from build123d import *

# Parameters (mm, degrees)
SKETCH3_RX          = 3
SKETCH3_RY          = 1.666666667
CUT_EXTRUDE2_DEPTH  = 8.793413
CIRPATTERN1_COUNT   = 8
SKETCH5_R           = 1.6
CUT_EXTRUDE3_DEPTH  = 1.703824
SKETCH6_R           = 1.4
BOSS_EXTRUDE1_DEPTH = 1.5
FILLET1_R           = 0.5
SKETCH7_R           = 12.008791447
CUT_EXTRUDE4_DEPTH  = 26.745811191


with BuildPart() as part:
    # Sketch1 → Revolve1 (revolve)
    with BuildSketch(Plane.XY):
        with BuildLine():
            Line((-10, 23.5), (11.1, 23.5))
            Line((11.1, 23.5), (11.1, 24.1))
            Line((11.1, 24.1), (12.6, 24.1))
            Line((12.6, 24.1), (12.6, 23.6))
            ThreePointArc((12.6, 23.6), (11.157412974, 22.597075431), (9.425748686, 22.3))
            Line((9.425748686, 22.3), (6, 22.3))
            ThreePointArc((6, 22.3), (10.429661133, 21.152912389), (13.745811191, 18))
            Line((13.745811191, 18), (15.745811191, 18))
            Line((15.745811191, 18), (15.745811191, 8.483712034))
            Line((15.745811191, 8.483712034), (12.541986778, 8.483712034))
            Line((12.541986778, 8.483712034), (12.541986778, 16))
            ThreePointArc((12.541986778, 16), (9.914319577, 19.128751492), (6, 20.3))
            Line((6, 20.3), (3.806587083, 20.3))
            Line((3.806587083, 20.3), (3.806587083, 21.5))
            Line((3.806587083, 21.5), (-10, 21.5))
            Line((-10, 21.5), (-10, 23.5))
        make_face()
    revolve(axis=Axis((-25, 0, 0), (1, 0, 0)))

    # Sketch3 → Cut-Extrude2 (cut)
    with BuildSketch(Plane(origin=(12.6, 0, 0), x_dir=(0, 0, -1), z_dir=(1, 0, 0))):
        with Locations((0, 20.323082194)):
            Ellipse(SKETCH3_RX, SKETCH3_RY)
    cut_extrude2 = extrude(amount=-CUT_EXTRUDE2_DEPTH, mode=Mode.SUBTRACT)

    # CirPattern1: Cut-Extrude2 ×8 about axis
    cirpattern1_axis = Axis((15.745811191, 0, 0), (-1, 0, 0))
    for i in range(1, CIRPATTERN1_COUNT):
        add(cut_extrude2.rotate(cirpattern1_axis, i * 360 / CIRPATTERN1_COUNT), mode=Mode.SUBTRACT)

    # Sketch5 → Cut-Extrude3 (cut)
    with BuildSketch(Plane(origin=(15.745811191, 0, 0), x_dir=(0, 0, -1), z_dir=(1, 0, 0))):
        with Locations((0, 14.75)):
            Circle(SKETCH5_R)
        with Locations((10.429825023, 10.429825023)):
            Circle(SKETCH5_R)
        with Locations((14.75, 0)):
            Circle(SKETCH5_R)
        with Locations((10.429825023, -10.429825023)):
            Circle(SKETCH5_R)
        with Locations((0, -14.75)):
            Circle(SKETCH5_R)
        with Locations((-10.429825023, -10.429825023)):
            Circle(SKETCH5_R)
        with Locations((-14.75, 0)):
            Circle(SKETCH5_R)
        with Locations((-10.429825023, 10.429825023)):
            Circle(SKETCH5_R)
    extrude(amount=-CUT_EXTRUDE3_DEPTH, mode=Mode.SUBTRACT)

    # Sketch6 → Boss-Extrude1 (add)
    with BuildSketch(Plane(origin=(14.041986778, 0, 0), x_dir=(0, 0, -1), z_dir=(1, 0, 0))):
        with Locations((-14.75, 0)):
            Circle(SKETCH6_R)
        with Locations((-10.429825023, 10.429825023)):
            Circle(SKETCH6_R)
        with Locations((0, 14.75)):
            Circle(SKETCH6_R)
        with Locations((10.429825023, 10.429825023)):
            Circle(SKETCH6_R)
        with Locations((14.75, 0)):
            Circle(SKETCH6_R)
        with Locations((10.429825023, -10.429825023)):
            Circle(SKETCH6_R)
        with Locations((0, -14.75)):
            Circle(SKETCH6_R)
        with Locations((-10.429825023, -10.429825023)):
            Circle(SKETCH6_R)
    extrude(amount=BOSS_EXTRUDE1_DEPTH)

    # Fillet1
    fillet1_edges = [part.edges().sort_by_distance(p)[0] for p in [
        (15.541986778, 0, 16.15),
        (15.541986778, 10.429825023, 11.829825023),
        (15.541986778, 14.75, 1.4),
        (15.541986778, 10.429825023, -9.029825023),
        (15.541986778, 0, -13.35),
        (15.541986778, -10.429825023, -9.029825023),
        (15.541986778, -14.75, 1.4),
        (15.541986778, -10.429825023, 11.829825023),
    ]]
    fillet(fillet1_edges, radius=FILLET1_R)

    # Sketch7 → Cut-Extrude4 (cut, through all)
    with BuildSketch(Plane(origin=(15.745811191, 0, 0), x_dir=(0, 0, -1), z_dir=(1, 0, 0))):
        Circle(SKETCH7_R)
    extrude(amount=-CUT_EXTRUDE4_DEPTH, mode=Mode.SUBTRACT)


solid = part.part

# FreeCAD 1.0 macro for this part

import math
import FreeCAD as App
import Part
import Sketcher

V = App.Vector


def edges_at(feature, points):
    """Names of the edges that pass closest to the given points."""
    edges = feature.Shape.Edges
    near = lambda p: min(range(len(edges)), key=lambda i: edges[i].distToShape(Part.Vertex(*p))[0])
    return sorted({f"Edge{near(p) + 1}" for p in points})

doc = App.newDocument("Part")
body = doc.addObject("PartDesign::Body", "Body")

# Sketch on XY plane
sketch1 = doc.addObject("Sketcher::SketchObject", "Sketch")
body.addObject(sketch1)
sketch1.AttachmentSupport = (doc.XY_Plane, [""])
sketch1.MapMode = "FlatFace"
sketch1.addGeometry(Part.LineSegment(V(11.1, 23.5, 0), V(-10, 23.5, 0)), False)
sketch1.addGeometry(Part.LineSegment(V(-10, 23.5, 0), V(-10, 21.5, 0)), False)
sketch1.addGeometry(Part.LineSegment(V(-10, 21.5, 0), V(3.8, 21.5, 0)), False)
sketch1.addGeometry(Part.LineSegment(V(3.8, 21.5, 0), V(3.8, 20.3, 0)), False)
sketch1.addGeometry(Part.LineSegment(V(3.8, 20.3, 0), V(6, 20.3, 0)), False)
sketch1.addGeometry(Part.ArcOfCircle(Part.Circle(V(6, 13.2, 0), V(0, 0, 1), 7.1), math.radians(23), math.radians(90)), False)
sketch1.addGeometry(Part.LineSegment(V(12.5, 16, 0), V(12.5, 8.5, 0)), False)
sketch1.addGeometry(Part.LineSegment(V(12.5, 8.5, 0), V(15.7, 8.5, 0)), False)
sketch1.addGeometry(Part.LineSegment(V(15.7, 8.5, 0), V(15.7, 18, 0)), False)
sketch1.addGeometry(Part.LineSegment(V(15.7, 18, 0), V(13.7, 18, 0)), False)
sketch1.addGeometry(Part.ArcOfCircle(Part.Circle(V(6, 13.2, 0), V(0, 0, 1), 9.1), math.radians(32), math.radians(90)), False)
sketch1.addGeometry(Part.LineSegment(V(6, 22.3, 0), V(9.4, 22.3, 0)), False)
sketch1.addGeometry(Part.ArcOfCircle(Part.Circle(V(9.6, 26.3, 0), V(0, 0, 1), 4), math.radians(-93), math.radians(-43)), False)
sketch1.addGeometry(Part.LineSegment(V(12.6, 23.6, 0), V(12.6, 24.1, 0)), False)
sketch1.addGeometry(Part.LineSegment(V(12.6, 24.1, 0), V(11.1, 24.1, 0)), False)
sketch1.addGeometry(Part.LineSegment(V(11.1, 24.1, 0), V(11.1, 23.5, 0)), False)
sketch1.addConstraint(Sketcher.Constraint("Coincident", 0, 2, 1, 1))
sketch1.addConstraint(Sketcher.Constraint("Coincident", 1, 2, 2, 1))
sketch1.addConstraint(Sketcher.Constraint("Coincident", 2, 2, 3, 1))
sketch1.addConstraint(Sketcher.Constraint("Coincident", 3, 2, 4, 1))
sketch1.addConstraint(Sketcher.Constraint("Tangent", 4, 2, 5, 2))
sketch1.addConstraint(Sketcher.Constraint("Coincident", 5, 1, 6, 1))
sketch1.addConstraint(Sketcher.Constraint("Coincident", 6, 2, 7, 1))
sketch1.addConstraint(Sketcher.Constraint("Coincident", 7, 2, 8, 1))
sketch1.addConstraint(Sketcher.Constraint("Coincident", 8, 2, 9, 1))
sketch1.addConstraint(Sketcher.Constraint("Coincident", 9, 2, 10, 1))
sketch1.addConstraint(Sketcher.Constraint("Tangent", 10, 2, 11, 1))
sketch1.addConstraint(Sketcher.Constraint("Coincident", 11, 2, 12, 1))
sketch1.addConstraint(Sketcher.Constraint("Coincident", 12, 2, 13, 1))
sketch1.addConstraint(Sketcher.Constraint("Coincident", 13, 2, 14, 1))
sketch1.addConstraint(Sketcher.Constraint("Coincident", 14, 2, 15, 1))
sketch1.addConstraint(Sketcher.Constraint("Coincident", 15, 2, 0, 1))
sketch1.addConstraint(Sketcher.Constraint("Horizontal", 0))
sketch1.addConstraint(Sketcher.Constraint("Vertical", 1))
sketch1.addConstraint(Sketcher.Constraint("Horizontal", 2))
sketch1.addConstraint(Sketcher.Constraint("Vertical", 3))
sketch1.addConstraint(Sketcher.Constraint("Horizontal", 4))
sketch1.addConstraint(Sketcher.Constraint("Vertical", 6))
sketch1.addConstraint(Sketcher.Constraint("Horizontal", 7))
sketch1.addConstraint(Sketcher.Constraint("Vertical", 8))
sketch1.addConstraint(Sketcher.Constraint("Horizontal", 9))
sketch1.addConstraint(Sketcher.Constraint("Horizontal", 11))
sketch1.addConstraint(Sketcher.Constraint("Vertical", 13))
sketch1.addConstraint(Sketcher.Constraint("Horizontal", 14))
sketch1.addConstraint(Sketcher.Constraint("Vertical", 15))
sketch1.addConstraint(Sketcher.Constraint("Coincident", 10, 3, 5, 3))
sketch1.addConstraint(Sketcher.Constraint("Equal", 9, 1))
sketch1.addConstraint(Sketcher.Constraint("DistanceX", 9, 2, 9, 1, 2.0))
sketch1.addConstraint(Sketcher.Constraint("DistanceX", 0, 2, 0, 1, 21.1))
sketch1.addConstraint(Sketcher.Constraint("DistanceX", 14, 2, 14, 1, 1.5))
sketch1.addConstraint(Sketcher.Constraint("DistanceY", 3, 2, 3, 1, 1.2))
sketch1.addConstraint(Sketcher.Constraint("DistanceY", 13, 1, 13, 2, 0.5))
sketch1.addConstraint(Sketcher.Constraint("DistanceY", 15, 2, 15, 1, 0.6))
sketch1.addConstraint(Sketcher.Constraint("DistanceX", -1, 1, 5, 3, 6.0))
sketch1.addConstraint(Sketcher.Constraint("DistanceX", 0, 2, -1, 1, 10.0))
sketch1.addConstraint(Sketcher.Constraint("DistanceY", -1, 1, 5, 1, 16.0))
sketch1.addConstraint(Sketcher.Constraint("DistanceY", -1, 1, 8, 2, 18.0))
sketch1.addConstraint(Sketcher.Constraint("DistanceY", 4, 2, 10, 2, 2.0))
sketch1.addConstraint(Sketcher.Constraint("DistanceY", -1, 1, 0, 2, 23.5))
sketch1.addConstraint(Sketcher.Constraint("Radius", 5, 7.126464))
sketch1.addConstraint(Sketcher.Constraint("Radius", 12, 4.047082))
sketch1.addConstraint(Sketcher.Constraint("DistanceX", 11, 1, 11, 2, 3.425749))
sketch1.addConstraint(Sketcher.Constraint("DistanceX", 3, 2, 5, 1, 8.7354))
sketch1.addConstraint(Sketcher.Constraint("DistanceY", 6, 2, 6, 1, 7.516288))
revolution = doc.addObject("PartDesign::Revolution", "Revolution")
body.addObject(revolution)
revolution.Profile = sketch1
revolution.ReferenceAxis = (sketch1, ["H_Axis"])
revolution.Angle = 360

# Sketch on YZ plane
sketch2 = doc.addObject("Sketcher::SketchObject", "Sketch001")
body.addObject(sketch2)
sketch2.AttachmentSupport = (doc.YZ_Plane, [""])
sketch2.MapMode = "FlatFace"
sketch2.AttachmentOffset = App.Placement(V(0, 0, 12.6), App.Rotation())
sketch2.addGeometry(Part.Ellipse(V(20.323082, -3, 0), V(21.989749, 0, 0), V(20.323082, 0, 0)), False)
sketch2.addConstraint(Sketcher.Constraint("Block", 0))
pocket1 = doc.addObject("PartDesign::Pocket", "Pocket")
body.addObject(pocket1)
pocket1.Profile = sketch2
pocket1.Length = 8.793413
doc.recompute()

polarpattern = doc.addObject("PartDesign::PolarPattern", "PolarPattern")
body.addObject(polarpattern)
polarpattern.Originals = [pocket1]
polarpattern.Axis = (doc.X_Axis, [""])
polarpattern.Angle = 360
polarpattern.Occurrences = 8
body.Tip = polarpattern

# Sketch on YZ plane
sketch3 = doc.addObject("Sketcher::SketchObject", "Sketch002")
body.addObject(sketch3)
sketch3.AttachmentSupport = (doc.YZ_Plane, [""])
sketch3.MapMode = "FlatFace"
sketch3.AttachmentOffset = App.Placement(V(0, 0, 15.745811), App.Rotation())
sketch3.addGeometry(Part.Circle(V(14.8, 0, 0), V(0, 0, 1), 1.6), False)
sketch3.addGeometry(Part.Circle(V(10.4, -10.4, 0), V(0, 0, 1), 1.6), False)
sketch3.addGeometry(Part.Circle(V(0, -14.8, 0), V(0, 0, 1), 1.6), False)
sketch3.addGeometry(Part.Circle(V(-10.4, -10.4, 0), V(0, 0, 1), 1.6), False)
sketch3.addGeometry(Part.Circle(V(-14.8, 0, 0), V(0, 0, 1), 1.6), False)
sketch3.addGeometry(Part.Circle(V(-10.4, 10.4, 0), V(0, 0, 1), 1.6), False)
sketch3.addGeometry(Part.Circle(V(0, 14.8, 0), V(0, 0, 1), 1.6), False)
sketch3.addGeometry(Part.Circle(V(10.4, 10.4, 0), V(0, 0, 1), 1.6), False)
sketch3.addConstraint(Sketcher.Constraint("Equal", 0, 1))
sketch3.addConstraint(Sketcher.Constraint("Equal", 1, 2))
sketch3.addConstraint(Sketcher.Constraint("Equal", 2, 3))
sketch3.addConstraint(Sketcher.Constraint("Equal", 3, 4))
sketch3.addConstraint(Sketcher.Constraint("Equal", 4, 5))
sketch3.addConstraint(Sketcher.Constraint("Equal", 5, 6))
sketch3.addConstraint(Sketcher.Constraint("Equal", 6, 7))
sketch3.addConstraint(Sketcher.Constraint("Symmetric", 0, 3, 4, 3, -1, 1))
sketch3.addConstraint(Sketcher.Constraint("Symmetric", 1, 3, 5, 3, -1, 1))
sketch3.addConstraint(Sketcher.Constraint("Symmetric", 2, 3, 6, 3, -1, 1))
sketch3.addConstraint(Sketcher.Constraint("Symmetric", 3, 3, 7, 3, -1, 1))
sketch3.addConstraint(Sketcher.Constraint("Symmetric", 1, 3, 3, 3, -2))
sketch3.addConstraint(Sketcher.Constraint("PointOnObject", 0, 3, -1))
sketch3.addConstraint(Sketcher.Constraint("PointOnObject", 2, 3, -2))
sketch3.addConstraint(Sketcher.Constraint("Diameter", 0, 3.2))
sketch3.addConstraint(Sketcher.Constraint("DistanceX", 4, 3, 0, 3, 29.5))
sketch3.addConstraint(Sketcher.Constraint("DistanceY", 2, 3, -1, 1, 14.75))
sketch3.addConstraint(Sketcher.Constraint("DistanceX", 3, 3, 1, 3, 20.85965))
sketch3.addConstraint(Sketcher.Constraint("DistanceY", 3, 3, 5, 3, 20.85965))
pocket2 = doc.addObject("PartDesign::Pocket", "Pocket001")
body.addObject(pocket2)
pocket2.Profile = sketch3
pocket2.Length = 1.703824

# Sketch on YZ plane
sketch4 = doc.addObject("Sketcher::SketchObject", "Sketch003")
body.addObject(sketch4)
sketch4.AttachmentSupport = (doc.YZ_Plane, [""])
sketch4.MapMode = "FlatFace"
sketch4.AttachmentOffset = App.Placement(V(0, 0, 14.041987), App.Rotation())
sketch4.addGeometry(Part.Circle(V(0, 14.8, 0), V(0, 0, 1), 1.4), False)
sketch4.addGeometry(Part.Circle(V(10.4, 10.4, 0), V(0, 0, 1), 1.4), False)
sketch4.addGeometry(Part.Circle(V(14.8, 0, 0), V(0, 0, 1), 1.4), False)
sketch4.addGeometry(Part.Circle(V(10.4, -10.4, 0), V(0, 0, 1), 1.4), False)
sketch4.addGeometry(Part.Circle(V(0, -14.8, 0), V(0, 0, 1), 1.4), False)
sketch4.addGeometry(Part.Circle(V(-10.4, -10.4, 0), V(0, 0, 1), 1.4), False)
sketch4.addGeometry(Part.Circle(V(-14.8, 0, 0), V(0, 0, 1), 1.4), False)
sketch4.addGeometry(Part.Circle(V(-10.4, 10.4, 0), V(0, 0, 1), 1.4), False)
sketch4.addConstraint(Sketcher.Constraint("Equal", 0, 1))
sketch4.addConstraint(Sketcher.Constraint("Equal", 1, 2))
sketch4.addConstraint(Sketcher.Constraint("Equal", 2, 3))
sketch4.addConstraint(Sketcher.Constraint("Equal", 3, 4))
sketch4.addConstraint(Sketcher.Constraint("Equal", 4, 5))
sketch4.addConstraint(Sketcher.Constraint("Equal", 5, 6))
sketch4.addConstraint(Sketcher.Constraint("Equal", 6, 7))
sketch4.addConstraint(Sketcher.Constraint("Symmetric", 0, 3, 4, 3, -1, 1))
sketch4.addConstraint(Sketcher.Constraint("Symmetric", 1, 3, 5, 3, -1, 1))
sketch4.addConstraint(Sketcher.Constraint("Symmetric", 2, 3, 6, 3, -1, 1))
sketch4.addConstraint(Sketcher.Constraint("Symmetric", 3, 3, 7, 3, -1, 1))
sketch4.addConstraint(Sketcher.Constraint("Symmetric", 3, 3, 5, 3, -2))
sketch4.addConstraint(Sketcher.Constraint("PointOnObject", 0, 3, -2))
sketch4.addConstraint(Sketcher.Constraint("PointOnObject", 2, 3, -1))
sketch4.addConstraint(Sketcher.Constraint("Diameter", 0, 2.8))
sketch4.addConstraint(Sketcher.Constraint("DistanceY", 4, 3, 0, 3, 29.5))
sketch4.addConstraint(Sketcher.Constraint("DistanceX", -1, 1, 2, 3, 14.75))
sketch4.addConstraint(Sketcher.Constraint("DistanceY", 3, 3, 1, 3, 20.85965))
sketch4.addConstraint(Sketcher.Constraint("DistanceX", 5, 3, 3, 3, 20.85965))
pad1 = doc.addObject("PartDesign::Pad", "Pad")
body.addObject(pad1)
pad1.Profile = sketch4
pad1.Length = 1.5
doc.recompute()

fillet = doc.addObject("PartDesign::Fillet", "Fillet")
body.addObject(fillet)
fillet.Base = (pad1, edges_at(pad1, [
    (15.542, 0, 16.15),
    (15.542, 10.43, 11.83),
    (15.542, 14.75, 1.4),
    (15.542, 10.43, -9.03),
    (15.542, 0, -13.35),
    (15.542, -10.43, -9.03),
    (15.542, -14.75, 1.4),
    (15.542, -10.43, 11.83),
]))
fillet.Radius = 0.5

# Sketch on YZ plane
sketch5 = doc.addObject("Sketcher::SketchObject", "Sketch004")
body.addObject(sketch5)
sketch5.AttachmentSupport = (doc.YZ_Plane, [""])
sketch5.MapMode = "FlatFace"
sketch5.AttachmentOffset = App.Placement(V(0, 0, 15.745811), App.Rotation())
sketch5.addGeometry(Part.Circle(V(0, 0, 0), V(0, 0, 1), 12), False)
sketch5.addConstraint(Sketcher.Constraint("Coincident", 0, 3, -1, 1))
sketch5.addConstraint(Sketcher.Constraint("Diameter", 0, 24.017583))
pocket3 = doc.addObject("PartDesign::Pocket", "Pocket002")
body.addObject(pocket3)
pocket3.Profile = sketch5
pocket3.Type = "ThroughAll"

doc.recompute()
